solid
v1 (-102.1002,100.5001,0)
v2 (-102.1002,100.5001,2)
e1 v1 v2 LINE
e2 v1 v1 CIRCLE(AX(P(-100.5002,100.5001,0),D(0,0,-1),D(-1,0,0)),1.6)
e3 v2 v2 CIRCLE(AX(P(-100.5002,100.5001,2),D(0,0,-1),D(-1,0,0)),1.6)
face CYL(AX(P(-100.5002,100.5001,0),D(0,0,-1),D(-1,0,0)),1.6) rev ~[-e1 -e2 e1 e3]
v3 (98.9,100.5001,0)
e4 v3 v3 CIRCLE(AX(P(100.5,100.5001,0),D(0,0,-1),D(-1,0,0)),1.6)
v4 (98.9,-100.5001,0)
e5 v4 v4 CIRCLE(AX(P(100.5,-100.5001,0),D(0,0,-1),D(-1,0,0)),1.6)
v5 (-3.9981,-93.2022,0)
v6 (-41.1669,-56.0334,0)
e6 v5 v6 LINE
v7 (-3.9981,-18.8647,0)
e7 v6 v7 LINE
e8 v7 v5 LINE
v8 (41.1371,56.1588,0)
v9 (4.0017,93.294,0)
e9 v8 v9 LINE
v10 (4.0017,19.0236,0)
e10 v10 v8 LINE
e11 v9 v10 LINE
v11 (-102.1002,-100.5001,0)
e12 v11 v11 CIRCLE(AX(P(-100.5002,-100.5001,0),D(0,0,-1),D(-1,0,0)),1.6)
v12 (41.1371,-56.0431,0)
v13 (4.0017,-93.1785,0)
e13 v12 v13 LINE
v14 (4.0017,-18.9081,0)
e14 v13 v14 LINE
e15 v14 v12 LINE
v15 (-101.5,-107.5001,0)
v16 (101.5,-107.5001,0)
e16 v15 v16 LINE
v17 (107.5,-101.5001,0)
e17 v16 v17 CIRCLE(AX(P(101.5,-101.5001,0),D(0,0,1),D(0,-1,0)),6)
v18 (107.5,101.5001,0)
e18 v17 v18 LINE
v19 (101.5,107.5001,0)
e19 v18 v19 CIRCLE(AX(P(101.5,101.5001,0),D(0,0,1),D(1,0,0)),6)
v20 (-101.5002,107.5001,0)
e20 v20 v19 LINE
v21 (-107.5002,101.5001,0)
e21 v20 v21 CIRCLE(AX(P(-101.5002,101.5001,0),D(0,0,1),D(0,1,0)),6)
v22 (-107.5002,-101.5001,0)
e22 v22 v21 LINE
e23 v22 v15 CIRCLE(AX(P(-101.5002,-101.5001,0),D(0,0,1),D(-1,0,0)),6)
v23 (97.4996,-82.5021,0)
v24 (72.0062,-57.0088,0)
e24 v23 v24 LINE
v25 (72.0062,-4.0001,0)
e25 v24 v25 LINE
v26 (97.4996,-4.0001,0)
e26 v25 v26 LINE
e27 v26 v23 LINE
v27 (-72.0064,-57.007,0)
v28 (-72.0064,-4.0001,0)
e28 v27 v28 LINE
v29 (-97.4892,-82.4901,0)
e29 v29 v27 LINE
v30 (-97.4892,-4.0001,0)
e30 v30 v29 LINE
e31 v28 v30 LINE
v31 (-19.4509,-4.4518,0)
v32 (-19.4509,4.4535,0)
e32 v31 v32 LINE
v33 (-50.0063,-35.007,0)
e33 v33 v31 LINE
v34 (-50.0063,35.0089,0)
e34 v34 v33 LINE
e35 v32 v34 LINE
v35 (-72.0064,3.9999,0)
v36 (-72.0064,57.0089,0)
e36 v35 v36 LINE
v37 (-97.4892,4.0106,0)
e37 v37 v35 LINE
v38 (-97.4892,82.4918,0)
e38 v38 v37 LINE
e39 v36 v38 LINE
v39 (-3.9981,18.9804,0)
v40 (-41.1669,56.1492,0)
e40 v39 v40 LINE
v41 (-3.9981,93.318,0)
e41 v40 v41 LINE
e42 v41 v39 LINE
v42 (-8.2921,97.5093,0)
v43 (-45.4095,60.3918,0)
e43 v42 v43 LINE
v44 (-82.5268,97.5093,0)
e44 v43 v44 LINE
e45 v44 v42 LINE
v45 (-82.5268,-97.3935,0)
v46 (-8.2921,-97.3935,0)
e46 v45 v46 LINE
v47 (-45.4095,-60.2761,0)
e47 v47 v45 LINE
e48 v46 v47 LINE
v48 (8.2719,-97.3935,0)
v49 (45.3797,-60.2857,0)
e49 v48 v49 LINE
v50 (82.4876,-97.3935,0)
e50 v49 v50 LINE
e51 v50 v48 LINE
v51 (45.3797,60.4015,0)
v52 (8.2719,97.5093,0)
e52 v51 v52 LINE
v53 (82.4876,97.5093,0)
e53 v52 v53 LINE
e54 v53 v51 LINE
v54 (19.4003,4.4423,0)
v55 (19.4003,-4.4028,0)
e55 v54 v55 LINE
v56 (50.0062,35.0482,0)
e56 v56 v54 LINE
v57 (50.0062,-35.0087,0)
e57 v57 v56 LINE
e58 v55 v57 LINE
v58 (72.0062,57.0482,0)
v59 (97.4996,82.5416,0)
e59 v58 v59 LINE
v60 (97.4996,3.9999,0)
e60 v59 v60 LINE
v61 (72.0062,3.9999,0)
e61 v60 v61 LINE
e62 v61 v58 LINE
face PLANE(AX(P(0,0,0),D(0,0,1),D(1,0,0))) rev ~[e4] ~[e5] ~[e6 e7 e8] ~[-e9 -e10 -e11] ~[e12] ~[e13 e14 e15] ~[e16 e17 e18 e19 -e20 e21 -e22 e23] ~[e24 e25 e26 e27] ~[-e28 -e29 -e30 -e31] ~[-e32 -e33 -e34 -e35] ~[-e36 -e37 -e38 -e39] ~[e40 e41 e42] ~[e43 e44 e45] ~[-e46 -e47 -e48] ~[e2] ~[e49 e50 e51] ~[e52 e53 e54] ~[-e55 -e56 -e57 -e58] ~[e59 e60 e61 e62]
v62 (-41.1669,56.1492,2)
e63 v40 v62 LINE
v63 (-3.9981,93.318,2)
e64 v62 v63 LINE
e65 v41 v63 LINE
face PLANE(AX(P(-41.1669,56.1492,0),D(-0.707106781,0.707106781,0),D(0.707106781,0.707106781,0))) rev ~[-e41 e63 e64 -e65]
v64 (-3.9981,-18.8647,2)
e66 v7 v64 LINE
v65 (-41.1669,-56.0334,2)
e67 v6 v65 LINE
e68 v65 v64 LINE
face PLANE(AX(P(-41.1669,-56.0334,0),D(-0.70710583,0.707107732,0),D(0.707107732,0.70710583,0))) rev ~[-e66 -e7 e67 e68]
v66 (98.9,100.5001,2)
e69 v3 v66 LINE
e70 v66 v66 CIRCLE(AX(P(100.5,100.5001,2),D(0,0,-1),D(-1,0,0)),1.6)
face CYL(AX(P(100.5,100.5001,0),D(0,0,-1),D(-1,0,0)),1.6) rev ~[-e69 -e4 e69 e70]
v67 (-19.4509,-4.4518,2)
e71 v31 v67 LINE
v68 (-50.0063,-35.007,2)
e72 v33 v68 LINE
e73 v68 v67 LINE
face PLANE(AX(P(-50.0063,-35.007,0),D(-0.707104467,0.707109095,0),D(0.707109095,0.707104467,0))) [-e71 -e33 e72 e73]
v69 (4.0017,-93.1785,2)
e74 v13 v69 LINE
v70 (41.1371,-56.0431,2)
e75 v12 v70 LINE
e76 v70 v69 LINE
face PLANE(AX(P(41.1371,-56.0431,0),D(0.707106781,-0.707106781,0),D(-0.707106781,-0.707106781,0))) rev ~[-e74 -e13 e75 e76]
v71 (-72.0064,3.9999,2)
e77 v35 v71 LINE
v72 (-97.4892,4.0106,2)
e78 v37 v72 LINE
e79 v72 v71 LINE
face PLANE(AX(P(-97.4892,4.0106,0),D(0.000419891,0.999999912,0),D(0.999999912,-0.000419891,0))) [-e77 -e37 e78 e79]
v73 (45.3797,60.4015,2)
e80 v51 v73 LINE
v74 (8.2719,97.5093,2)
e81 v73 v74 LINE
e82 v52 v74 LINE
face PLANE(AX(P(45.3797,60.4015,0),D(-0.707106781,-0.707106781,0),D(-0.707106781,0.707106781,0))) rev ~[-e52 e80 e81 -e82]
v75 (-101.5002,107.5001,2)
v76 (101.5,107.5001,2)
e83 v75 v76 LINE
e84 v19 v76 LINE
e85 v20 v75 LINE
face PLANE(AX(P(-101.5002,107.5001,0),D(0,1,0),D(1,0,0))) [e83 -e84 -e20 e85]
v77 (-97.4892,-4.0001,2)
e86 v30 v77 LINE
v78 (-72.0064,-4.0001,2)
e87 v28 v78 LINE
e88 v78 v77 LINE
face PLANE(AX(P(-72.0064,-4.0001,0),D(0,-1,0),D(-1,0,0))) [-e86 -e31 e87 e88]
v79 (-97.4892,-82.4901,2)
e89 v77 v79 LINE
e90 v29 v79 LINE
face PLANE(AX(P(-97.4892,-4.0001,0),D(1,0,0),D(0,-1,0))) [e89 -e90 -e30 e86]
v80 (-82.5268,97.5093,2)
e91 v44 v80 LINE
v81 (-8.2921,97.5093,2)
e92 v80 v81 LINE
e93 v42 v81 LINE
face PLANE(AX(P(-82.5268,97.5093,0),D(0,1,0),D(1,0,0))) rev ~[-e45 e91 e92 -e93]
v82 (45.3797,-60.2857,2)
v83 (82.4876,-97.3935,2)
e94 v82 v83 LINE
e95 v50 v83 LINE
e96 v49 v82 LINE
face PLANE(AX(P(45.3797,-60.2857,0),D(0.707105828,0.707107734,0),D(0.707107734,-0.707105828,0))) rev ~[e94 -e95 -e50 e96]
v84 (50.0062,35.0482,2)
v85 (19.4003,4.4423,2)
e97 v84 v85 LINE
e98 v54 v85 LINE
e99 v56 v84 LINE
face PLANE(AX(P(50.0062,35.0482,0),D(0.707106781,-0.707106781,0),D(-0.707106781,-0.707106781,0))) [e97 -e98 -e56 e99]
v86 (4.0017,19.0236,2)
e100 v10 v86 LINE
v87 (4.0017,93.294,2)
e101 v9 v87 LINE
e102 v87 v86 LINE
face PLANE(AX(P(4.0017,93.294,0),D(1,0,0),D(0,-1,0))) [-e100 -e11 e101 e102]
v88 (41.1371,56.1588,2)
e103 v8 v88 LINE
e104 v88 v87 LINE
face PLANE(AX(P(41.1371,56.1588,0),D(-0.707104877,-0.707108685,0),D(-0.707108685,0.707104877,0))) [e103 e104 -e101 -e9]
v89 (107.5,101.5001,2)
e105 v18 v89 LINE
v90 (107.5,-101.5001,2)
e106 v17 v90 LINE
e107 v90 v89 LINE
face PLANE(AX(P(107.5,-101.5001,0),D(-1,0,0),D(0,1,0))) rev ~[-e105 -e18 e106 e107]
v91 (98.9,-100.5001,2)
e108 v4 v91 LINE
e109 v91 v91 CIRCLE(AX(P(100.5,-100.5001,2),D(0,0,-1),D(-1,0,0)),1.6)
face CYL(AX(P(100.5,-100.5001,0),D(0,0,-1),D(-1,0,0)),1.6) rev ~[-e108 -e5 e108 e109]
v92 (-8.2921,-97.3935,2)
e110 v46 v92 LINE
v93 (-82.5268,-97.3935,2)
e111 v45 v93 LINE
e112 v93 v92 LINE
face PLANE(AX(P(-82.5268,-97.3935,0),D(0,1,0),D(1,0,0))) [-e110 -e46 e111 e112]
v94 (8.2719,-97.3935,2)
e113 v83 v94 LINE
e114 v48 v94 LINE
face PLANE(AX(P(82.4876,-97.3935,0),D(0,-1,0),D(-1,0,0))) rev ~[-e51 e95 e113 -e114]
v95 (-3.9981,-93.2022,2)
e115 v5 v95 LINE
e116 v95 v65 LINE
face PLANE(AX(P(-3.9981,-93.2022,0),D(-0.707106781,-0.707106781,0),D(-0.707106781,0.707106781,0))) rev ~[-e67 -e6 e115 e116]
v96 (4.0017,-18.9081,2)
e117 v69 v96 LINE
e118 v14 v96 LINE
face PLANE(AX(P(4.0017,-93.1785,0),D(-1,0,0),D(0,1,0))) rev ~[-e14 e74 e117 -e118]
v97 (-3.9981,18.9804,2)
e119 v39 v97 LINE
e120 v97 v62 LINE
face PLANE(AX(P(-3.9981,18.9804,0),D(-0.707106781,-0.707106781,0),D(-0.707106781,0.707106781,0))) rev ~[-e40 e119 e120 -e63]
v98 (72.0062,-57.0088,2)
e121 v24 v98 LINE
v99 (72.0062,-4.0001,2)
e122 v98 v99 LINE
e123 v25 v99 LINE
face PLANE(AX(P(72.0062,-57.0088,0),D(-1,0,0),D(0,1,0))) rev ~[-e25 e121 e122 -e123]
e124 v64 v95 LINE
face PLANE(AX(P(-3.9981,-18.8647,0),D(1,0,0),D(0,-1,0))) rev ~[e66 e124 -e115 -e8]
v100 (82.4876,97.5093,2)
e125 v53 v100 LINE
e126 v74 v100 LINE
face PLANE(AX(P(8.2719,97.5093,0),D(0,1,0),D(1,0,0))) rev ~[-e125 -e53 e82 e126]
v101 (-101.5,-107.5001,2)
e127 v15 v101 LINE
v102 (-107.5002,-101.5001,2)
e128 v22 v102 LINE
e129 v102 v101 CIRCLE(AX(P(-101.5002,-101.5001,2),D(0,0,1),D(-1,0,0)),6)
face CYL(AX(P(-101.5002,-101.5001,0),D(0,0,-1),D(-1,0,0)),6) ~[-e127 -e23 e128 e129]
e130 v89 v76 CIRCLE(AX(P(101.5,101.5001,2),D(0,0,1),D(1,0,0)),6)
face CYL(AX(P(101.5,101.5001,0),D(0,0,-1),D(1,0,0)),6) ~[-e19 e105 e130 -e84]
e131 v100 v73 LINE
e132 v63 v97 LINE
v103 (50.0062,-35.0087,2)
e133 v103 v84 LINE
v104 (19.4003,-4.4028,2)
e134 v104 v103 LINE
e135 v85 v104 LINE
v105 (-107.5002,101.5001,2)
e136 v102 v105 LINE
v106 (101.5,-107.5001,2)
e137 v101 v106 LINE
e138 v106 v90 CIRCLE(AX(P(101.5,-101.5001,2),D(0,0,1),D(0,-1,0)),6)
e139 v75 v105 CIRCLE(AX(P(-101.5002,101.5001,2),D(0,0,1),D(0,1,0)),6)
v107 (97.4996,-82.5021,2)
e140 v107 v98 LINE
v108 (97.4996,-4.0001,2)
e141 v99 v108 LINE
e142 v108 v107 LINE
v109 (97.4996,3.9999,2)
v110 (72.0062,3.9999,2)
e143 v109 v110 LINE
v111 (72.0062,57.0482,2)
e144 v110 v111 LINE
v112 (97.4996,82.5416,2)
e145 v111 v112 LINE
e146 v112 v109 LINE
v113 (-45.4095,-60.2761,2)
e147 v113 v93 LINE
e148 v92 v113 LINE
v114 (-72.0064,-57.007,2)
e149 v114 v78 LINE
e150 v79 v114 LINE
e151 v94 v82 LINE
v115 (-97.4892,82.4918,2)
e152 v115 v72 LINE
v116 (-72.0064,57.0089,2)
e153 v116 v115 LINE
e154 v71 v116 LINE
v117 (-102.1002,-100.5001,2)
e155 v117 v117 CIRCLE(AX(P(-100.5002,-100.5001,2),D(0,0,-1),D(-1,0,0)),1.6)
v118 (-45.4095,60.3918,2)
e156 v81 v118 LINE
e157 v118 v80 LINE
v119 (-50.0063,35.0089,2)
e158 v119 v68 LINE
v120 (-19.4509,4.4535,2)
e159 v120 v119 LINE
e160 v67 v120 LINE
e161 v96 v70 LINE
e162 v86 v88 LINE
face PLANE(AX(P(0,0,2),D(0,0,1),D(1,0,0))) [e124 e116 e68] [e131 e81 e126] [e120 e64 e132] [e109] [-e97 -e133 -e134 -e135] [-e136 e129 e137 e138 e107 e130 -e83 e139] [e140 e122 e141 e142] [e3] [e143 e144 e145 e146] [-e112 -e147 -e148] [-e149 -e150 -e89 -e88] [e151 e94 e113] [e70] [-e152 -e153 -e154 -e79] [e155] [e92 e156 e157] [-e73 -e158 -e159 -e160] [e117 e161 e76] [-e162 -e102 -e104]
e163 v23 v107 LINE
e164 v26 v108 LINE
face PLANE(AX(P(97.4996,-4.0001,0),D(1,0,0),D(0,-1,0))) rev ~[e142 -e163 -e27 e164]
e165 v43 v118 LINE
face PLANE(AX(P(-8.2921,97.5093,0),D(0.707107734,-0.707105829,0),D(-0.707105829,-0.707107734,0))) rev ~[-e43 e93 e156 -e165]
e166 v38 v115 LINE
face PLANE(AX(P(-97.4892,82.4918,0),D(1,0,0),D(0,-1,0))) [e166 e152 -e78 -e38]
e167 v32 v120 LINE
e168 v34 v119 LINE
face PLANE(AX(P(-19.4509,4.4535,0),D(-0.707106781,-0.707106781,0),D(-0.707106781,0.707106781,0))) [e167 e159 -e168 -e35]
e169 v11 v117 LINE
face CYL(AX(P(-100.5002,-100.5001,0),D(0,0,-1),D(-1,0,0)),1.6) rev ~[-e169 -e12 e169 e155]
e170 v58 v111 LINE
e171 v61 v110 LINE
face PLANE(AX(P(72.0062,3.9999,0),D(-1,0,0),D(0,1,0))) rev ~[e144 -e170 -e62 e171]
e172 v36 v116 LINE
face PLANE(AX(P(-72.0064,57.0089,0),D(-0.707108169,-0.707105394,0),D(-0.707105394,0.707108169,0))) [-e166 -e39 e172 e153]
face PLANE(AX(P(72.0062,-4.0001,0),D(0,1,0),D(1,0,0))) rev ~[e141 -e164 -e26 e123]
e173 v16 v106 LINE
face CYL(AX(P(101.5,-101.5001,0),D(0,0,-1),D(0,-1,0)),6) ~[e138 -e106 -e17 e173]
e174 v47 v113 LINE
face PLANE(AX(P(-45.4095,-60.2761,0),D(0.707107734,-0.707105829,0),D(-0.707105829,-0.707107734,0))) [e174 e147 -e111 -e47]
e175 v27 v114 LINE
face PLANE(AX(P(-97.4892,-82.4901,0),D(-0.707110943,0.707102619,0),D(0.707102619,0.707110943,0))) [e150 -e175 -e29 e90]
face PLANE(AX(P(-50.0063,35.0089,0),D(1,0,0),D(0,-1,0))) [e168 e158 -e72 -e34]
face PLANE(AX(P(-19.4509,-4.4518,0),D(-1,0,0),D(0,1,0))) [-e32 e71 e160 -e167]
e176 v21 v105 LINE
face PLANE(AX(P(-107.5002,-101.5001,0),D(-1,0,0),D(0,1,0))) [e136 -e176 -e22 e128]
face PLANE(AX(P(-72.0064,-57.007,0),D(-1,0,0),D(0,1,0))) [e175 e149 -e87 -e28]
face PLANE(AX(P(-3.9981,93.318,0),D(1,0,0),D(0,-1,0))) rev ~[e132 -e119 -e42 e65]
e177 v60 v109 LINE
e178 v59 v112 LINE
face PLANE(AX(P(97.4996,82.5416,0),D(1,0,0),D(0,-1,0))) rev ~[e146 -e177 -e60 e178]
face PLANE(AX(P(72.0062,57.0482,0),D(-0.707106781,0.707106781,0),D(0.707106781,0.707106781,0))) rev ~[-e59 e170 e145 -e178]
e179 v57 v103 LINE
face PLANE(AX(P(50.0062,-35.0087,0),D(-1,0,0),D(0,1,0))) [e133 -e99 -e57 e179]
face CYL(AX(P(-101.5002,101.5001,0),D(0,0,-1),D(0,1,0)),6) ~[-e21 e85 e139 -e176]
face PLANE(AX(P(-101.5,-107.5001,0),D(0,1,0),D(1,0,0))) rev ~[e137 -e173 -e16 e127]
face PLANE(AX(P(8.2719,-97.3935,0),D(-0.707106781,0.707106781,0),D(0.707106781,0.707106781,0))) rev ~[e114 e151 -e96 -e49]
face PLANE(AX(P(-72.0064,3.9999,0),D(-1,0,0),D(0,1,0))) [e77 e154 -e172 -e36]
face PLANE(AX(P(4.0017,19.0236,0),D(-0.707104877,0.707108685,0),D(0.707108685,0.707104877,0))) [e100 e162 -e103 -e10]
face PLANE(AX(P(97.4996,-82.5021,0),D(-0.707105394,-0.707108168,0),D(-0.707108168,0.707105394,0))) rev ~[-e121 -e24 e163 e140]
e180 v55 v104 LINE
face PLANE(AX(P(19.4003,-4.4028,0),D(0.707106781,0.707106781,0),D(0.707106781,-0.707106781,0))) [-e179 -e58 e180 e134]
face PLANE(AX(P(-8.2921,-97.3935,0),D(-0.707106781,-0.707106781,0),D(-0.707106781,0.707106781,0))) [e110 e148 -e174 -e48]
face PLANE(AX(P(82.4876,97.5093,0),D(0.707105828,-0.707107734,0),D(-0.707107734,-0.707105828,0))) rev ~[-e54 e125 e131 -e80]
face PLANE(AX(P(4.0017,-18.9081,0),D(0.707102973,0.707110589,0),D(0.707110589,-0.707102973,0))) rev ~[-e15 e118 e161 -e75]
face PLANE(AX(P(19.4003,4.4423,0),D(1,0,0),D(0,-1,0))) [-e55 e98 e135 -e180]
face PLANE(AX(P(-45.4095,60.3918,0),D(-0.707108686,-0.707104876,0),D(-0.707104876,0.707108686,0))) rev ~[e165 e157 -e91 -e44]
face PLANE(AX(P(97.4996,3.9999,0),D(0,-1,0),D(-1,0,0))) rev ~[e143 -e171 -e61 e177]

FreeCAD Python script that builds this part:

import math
import FreeCAD as App
import Part
import Sketcher


def add_polygon(sketch, points):
    """Adds a closed chain of lines whose ends are joined by coincident constraints."""
    first, n = sketch.GeometryCount, len(points)
    for a, b in zip(points, points[1:] + points[:1]):
        sketch.addGeometry(Part.LineSegment(App.Vector(*a, 0), App.Vector(*b, 0)), False)
    for i in range(n):
        sketch.addConstraint(Sketcher.Constraint("Coincident", first + i, 2, first + (i + 1) % n, 1))

doc = App.newDocument("Part")
params = doc.addObject("Spreadsheet::Sheet", "Params")
for row, (alias, value) in enumerate([
    ("sketch1_radius", "6 mm"),
    ("sketch1_width", "203 mm"),
    ("sketch1_height", "78.49 mm"),
    ("pad1_length", "2 mm"),
    ("sketch2_diameter", "3.2 mm"),
], start=1):
    params.set(f"A{row}", alias)
    params.set(f"B{row}", "=" + value)
    params.setAlias(f"B{row}", alias)

body = doc.addObject("PartDesign::Body", "Body")

sketch1 = doc.addObject("Sketcher::SketchObject", "Sketch")
body.addObject(sketch1)
sketch1.AttachmentSupport = (doc.XY_Plane, [""])
sketch1.MapMode = "FlatFace"
sketch1.addGeometry(Part.ArcOfCircle(Part.Circle(App.Vector(102, -102, 0), App.Vector(0, 0, 1), 6), math.radians(-90), math.radians(0)), False)
sketch1.addGeometry(Part.LineSegment(App.Vector(108, -102, 0), App.Vector(108, 102, 0)), False)
sketch1.addGeometry(Part.ArcOfCircle(Part.Circle(App.Vector(102, 102, 0), App.Vector(0, 0, 1), 6), math.radians(0), math.radians(90)), False)
sketch1.addGeometry(Part.LineSegment(App.Vector(102, 108, 0), App.Vector(-102, 108, 0)), False)
sketch1.addGeometry(Part.ArcOfCircle(Part.Circle(App.Vector(-102, 102, 0), App.Vector(0, 0, 1), 6), math.radians(90), math.radians(180)), False)
sketch1.addGeometry(Part.LineSegment(App.Vector(-108, 102, 0), App.Vector(-108, -102, 0)), False)
sketch1.addGeometry(Part.ArcOfCircle(Part.Circle(App.Vector(-102, -102, 0), App.Vector(0, 0, 1), 6), math.radians(180), math.radians(270)), False)
sketch1.addGeometry(Part.LineSegment(App.Vector(-102, -108, 0), App.Vector(102, -108, 0)), False)
add_polygon(sketch1, [(-83, -97), (-45, -60), (-8, -97)])
add_polygon(sketch1, [(-41, -56), (-4, -19), (-4, -93)])
add_polygon(sketch1, [(-72, -57), (-97, -82), (-97, -4), (-72, -4)])
add_polygon(sketch1, [(4, -19), (41, -56), (4, -93)])
add_polygon(sketch1, [(8, -97), (45, -60), (82, -97)])
add_polygon(sketch1, [(72, -57), (72, -4), (97, -4), (97, -83)])
add_polygon(sketch1, [(-72, 4), (-97, 4), (-97, 82), (-72, 57)])
add_polygon(sketch1, [(-19, -4), (-50, -35), (-50, 35), (-19, 4)])
add_polygon(sketch1, [(-45, 60), (-83, 98), (-8, 98)])
add_polygon(sketch1, [(-4, 19), (-41, 56), (-4, 93)])
add_polygon(sketch1, [(50, 35), (50, -35), (19, -4), (19, 4)])
add_polygon(sketch1, [(72, 4), (72, 57), (97, 83), (97, 4)])
add_polygon(sketch1, [(41, 56), (4, 19), (4, 93)])
add_polygon(sketch1, [(45, 60), (8, 98), (82, 98)])
sketch1.addConstraint([
    Sketcher.Constraint("Tangent", 0, 2, 1, 1),
    Sketcher.Constraint("Tangent", 1, 2, 2, 1),
    Sketcher.Constraint("Tangent", 2, 2, 3, 1),
    Sketcher.Constraint("Tangent", 3, 2, 4, 1),
    Sketcher.Constraint("Tangent", 4, 2, 5, 1),
    Sketcher.Constraint("Tangent", 5, 2, 6, 1),
    Sketcher.Constraint("Tangent", 6, 2, 7, 1),
    Sketcher.Constraint("Tangent", 7, 2, 0, 1),
    Sketcher.Constraint("Vertical", 1),
    Sketcher.Constraint("Horizontal", 3),
    Sketcher.Constraint("Vertical", 5),
    Sketcher.Constraint("Horizontal", 7),
    Sketcher.Constraint("Horizontal", 10),
    Sketcher.Constraint("Vertical", 12),
    Sketcher.Constraint("Vertical", 15),
    Sketcher.Constraint("Horizontal", 16),
    Sketcher.Constraint("Vertical", 17),
    Sketcher.Constraint("Vertical", 20),
    Sketcher.Constraint("Horizontal", 23),
    Sketcher.Constraint("Vertical", 24),
    Sketcher.Constraint("Horizontal", 25),
    Sketcher.Constraint("Vertical", 26),
    Sketcher.Constraint("Vertical", 29),
    Sketcher.Constraint("Vertical", 31),
    Sketcher.Constraint("Vertical", 33),
    Sketcher.Constraint("Vertical", 35),
    Sketcher.Constraint("Horizontal", 37),
    Sketcher.Constraint("Vertical", 41),
    Sketcher.Constraint("Vertical", 42),
    Sketcher.Constraint("Vertical", 44),
    Sketcher.Constraint("Vertical", 46),
    Sketcher.Constraint("Vertical", 48),
    Sketcher.Constraint("Horizontal", 49),
    Sketcher.Constraint("Vertical", 51),
    Sketcher.Constraint("Horizontal", 54),
    Sketcher.Constraint("Equal", 0, 2),
    Sketcher.Constraint("Equal", 2, 4),
    Sketcher.Constraint("Equal", 4, 6),
    Sketcher.Constraint("Symmetric", 0, 3, 4, 3, -1, 1),
    Sketcher.Constraint("Symmetric", 27, 2, 30, 2, -1, 1),
    Sketcher.Constraint("Symmetric", 33, 2, 42, 2, -1, 1),
    Sketcher.Constraint("Symmetric", 16, 2, 49, 2, -1, 1),
    Sketcher.Constraint("Symmetric", 16, 2, 24, 2, -2),
    Sketcher.Constraint("Perpendicular", 8, 9),
    Sketcher.Constraint("Perpendicular", 9, 11),
    Sketcher.Constraint("Perpendicular", 11, 13),
    Sketcher.Constraint("Perpendicular", 13, 14),
    Sketcher.Constraint("Perpendicular", 14, 18),
    Sketcher.Constraint("Perpendicular", 18, 19),
    Sketcher.Constraint("Parallel", 19, 21),
    Sketcher.Constraint("Perpendicular", 21, 22),
    Sketcher.Constraint("Parallel", 22, 27),
    Sketcher.Constraint("Parallel", 27, 30),
    Sketcher.Constraint("Perpendicular", 30, 32),
    Sketcher.Constraint("Perpendicular", 32, 34),
    Sketcher.Constraint("Parallel", 34, 36),
    Sketcher.Constraint("Perpendicular", 36, 38),
    Sketcher.Constraint("Perpendicular", 38, 39),
    Sketcher.Constraint("Perpendicular", 39, 40),
    Sketcher.Constraint("Perpendicular", 40, 43),
    Sketcher.Constraint("Perpendicular", 43, 45),
    Sketcher.Constraint("Parallel", 45, 47),
    Sketcher.Constraint("Parallel", 47, 50),
    Sketcher.Constraint("Perpendicular", 50, 52),
    Sketcher.Constraint("Parallel", 52, 53),
    Sketcher.Constraint("Perpendicular", 53, 55),
    Sketcher.Constraint("Horizontal", 10, 2, 22, 2),
    Sketcher.Constraint("Horizontal", 31, 2, 48, 2),
    Sketcher.Constraint("Horizontal", 37, 2, 53, 2),
    Sketcher.Constraint("Vertical", 15, 2, 28, 2),
    Sketcher.Constraint("Vertical", 10, 2, 36, 2),
    Sketcher.Constraint("Vertical", 9, 2, 37, 2),
    Sketcher.Constraint("Vertical", 8, 2, 38, 2),
    Sketcher.Constraint("Vertical", 13, 2, 39, 2),
    Sketcher.Constraint("Vertical", 12, 2, 40, 2),
    Sketcher.Constraint("Vertical", 26, 2, 47, 2),
    Sketcher.Constraint("Vertical", 20, 2, 50, 2),
    Sketcher.Constraint("Vertical", 18, 2, 52, 2),
    Sketcher.Constraint("Vertical", 23, 2, 53, 2),
    Sketcher.Constraint("Vertical", 22, 2, 54, 2),
    Sketcher.Constraint("Equal", 3, 1),
    Sketcher.Constraint("Radius", 0, 6.0),
    Sketcher.Constraint("DistanceX", 7, 1, 7, 2, 203.0),
    Sketcher.Constraint("DistanceY", 15, 2, -1, 1, 4.0),
    Sketcher.Constraint("DistanceX", 17, 2, 32, 2, 22.0),
    Sketcher.Constraint("DistanceY", 17, 2, 32, 2, 22.0),
    Sketcher.Constraint("DistanceY", 33, 2, 30, 2, 22.0),
    Sketcher.Constraint("DistanceY", 45, 2, 46, 2, 22.0),
    Sketcher.Constraint("DistanceY", 15, 1, 15, 2, 78.49),
    Sketcher.Constraint("DistanceY", 38, 2, 29, 2, 22.1),
    Sketcher.Constraint("DistanceY", 17, 2, 17, 1, 53.007),
    Sketcher.Constraint("DistanceY", 26, 2, 26, 1, 78.502),
    Sketcher.Constraint("DistanceY", 31, 2, 31, 1, 53.009),
    Sketcher.Constraint("DistanceY", 42, 2, 42, 1, 70.057),
    Sketcher.Constraint("DistanceY", 44, 1, 44, 2, 8.845),
    Sketcher.Constraint("DistanceY", 9, 2, 13, 2, 41.36),
    Sketcher.Constraint("DistanceX", 10, 2, 13, 2, 41.36),
    Sketcher.Constraint("DistanceX", 12, 2, 23, 2, 12.27),
    Sketcher.Constraint("DistanceX", 21, 2, 25, 2, 52.12),
    Sketcher.Constraint("DistanceY", 39, 2, 37, 2, 41.36),
    Sketcher.Constraint("DistanceY", 34, 2, 50, 2, 14.57),
    Sketcher.Constraint("Distance", 9, 52.492),
    Sketcher.Constraint("Distance", 18, 52.517),
    Sketcher.Constraint("DistanceX", 23, 2, 23, 1, 74.2157),
    Sketcher.Constraint("DistanceY", 12, 2, 12, 1, 74.3375),
    Sketcher.Constraint("DistanceY", 29, 1, 29, 2, 78.4812),
    Sketcher.Constraint("DistanceY", 35, 2, 35, 1, 8.9053),
    Sketcher.Constraint("DistanceY", 8, 2, -1, 1, 60.276),
    Sketcher.Constraint("DistanceX", 9, 2, -1, 1, 8.292),
    Sketcher.Constraint("DistanceX", -1, 1, 18, 2, 41.137),
    Sketcher.Constraint("DistanceY", 18, 2, -1, 1, 56.043),
])
sketch1.setExpression("Constraints[129]", "Params.sketch1_radius")
sketch1.setExpression("Constraints[130]", "Params.sketch1_width")
sketch1.setExpression("Constraints[136]", "Params.sketch1_height")
pad1 = doc.addObject("PartDesign::Pad", "Pad")
body.addObject(pad1)
pad1.Profile = sketch1
pad1.setExpression("Length", "Params.pad1_length")

sketch2 = doc.addObject("Sketcher::SketchObject", "Sketch001")
body.addObject(sketch2)
sketch2.AttachmentSupport = (doc.XY_Plane, [""])
sketch2.MapMode = "FlatFace"
sketch2.addGeometry([
    Part.Circle(App.Vector(100.5, 100.5, 0), App.Vector(0, 0, 1), 1.6),
    Part.Circle(App.Vector(-100.5, 100.5, 0), App.Vector(0, 0, 1), 1.6),
    Part.Circle(App.Vector(100.5, -100.5, 0), App.Vector(0, 0, 1), 1.6),
    Part.Circle(App.Vector(-100.5, -100.5, 0), App.Vector(0, 0, 1), 1.6),
], False)
sketch2.addConstraint([
    Sketcher.Constraint("Equal", 0, 1),
    Sketcher.Constraint("Equal", 1, 2),
    Sketcher.Constraint("Equal", 2, 3),
    Sketcher.Constraint("Symmetric", 1, 3, 2, 3, -1, 1),
    Sketcher.Constraint("Symmetric", 0, 3, 3, 3, -1, 1),
    Sketcher.Constraint("Symmetric", 0, 3, 1, 3, -2),
    Sketcher.Constraint("Diameter", 0, 3.2),
    Sketcher.Constraint("DistanceX", -1, 1, 0, 3, 100.5),
    Sketcher.Constraint("DistanceY", -1, 1, 0, 3, 100.5),
])
sketch2.setExpression("Constraints[6]", "Params.sketch2_diameter")
pocket1 = doc.addObject("PartDesign::Pocket", "Pocket")
body.addObject(pocket1)
pocket1.Profile = sketch2
pocket1.Type = "ThroughAll"
pocket1.Reversed = True

doc.recompute()
